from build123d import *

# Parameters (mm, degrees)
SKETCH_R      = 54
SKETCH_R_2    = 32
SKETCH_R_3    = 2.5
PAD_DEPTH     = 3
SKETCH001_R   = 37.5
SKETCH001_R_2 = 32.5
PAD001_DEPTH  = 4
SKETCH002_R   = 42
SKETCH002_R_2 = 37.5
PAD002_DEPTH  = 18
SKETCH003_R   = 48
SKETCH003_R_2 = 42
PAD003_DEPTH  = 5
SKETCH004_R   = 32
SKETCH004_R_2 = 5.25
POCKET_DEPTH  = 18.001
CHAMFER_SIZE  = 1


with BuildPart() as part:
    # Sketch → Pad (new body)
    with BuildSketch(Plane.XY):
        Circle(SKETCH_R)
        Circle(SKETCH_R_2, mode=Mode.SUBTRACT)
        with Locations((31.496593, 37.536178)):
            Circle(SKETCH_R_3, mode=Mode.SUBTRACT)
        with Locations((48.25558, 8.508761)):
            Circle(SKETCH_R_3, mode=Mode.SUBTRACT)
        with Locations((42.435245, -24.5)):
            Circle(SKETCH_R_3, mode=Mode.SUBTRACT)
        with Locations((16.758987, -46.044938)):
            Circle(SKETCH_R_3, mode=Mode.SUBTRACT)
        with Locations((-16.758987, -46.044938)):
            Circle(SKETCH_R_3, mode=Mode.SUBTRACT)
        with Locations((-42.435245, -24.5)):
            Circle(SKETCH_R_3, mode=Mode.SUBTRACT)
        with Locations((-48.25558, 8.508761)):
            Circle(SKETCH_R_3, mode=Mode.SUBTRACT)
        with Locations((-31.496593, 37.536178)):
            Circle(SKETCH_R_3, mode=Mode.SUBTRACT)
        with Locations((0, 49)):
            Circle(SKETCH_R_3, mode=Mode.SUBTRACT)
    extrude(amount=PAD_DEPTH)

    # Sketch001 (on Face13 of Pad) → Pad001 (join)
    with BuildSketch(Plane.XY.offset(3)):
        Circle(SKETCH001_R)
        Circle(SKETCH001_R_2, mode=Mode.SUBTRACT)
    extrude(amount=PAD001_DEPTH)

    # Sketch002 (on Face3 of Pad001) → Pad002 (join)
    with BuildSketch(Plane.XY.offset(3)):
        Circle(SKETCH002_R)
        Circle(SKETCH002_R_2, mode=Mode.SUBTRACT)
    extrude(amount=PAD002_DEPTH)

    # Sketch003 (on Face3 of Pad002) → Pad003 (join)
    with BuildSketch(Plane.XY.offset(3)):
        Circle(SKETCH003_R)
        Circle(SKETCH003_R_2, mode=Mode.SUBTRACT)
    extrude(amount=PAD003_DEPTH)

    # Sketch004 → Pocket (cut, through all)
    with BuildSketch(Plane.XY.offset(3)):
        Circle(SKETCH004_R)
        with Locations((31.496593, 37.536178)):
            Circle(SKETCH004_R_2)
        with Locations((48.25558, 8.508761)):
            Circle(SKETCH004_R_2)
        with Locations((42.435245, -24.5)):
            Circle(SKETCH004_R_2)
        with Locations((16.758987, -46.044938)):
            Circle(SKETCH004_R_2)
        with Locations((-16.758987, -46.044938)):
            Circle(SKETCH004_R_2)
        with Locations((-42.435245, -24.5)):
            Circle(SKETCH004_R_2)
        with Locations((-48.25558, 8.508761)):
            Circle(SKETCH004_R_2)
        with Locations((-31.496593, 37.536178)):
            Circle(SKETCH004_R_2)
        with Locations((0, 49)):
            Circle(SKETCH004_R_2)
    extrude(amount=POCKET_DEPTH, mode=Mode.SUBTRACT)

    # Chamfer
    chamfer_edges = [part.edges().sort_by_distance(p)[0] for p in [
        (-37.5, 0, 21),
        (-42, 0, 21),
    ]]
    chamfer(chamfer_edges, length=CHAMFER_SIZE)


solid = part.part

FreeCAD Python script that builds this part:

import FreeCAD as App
import Part
import Sketcher

V = App.Vector
Q = App.Units.Quantity


def edges_at(feature, points):
    """Names of the edges that pass closest to the given points."""
    edges = feature.Shape.Edges
    near = lambda p: min(range(len(edges)), key=lambda i: edges[i].distToShape(Part.Vertex(*p))[0])
    return sorted({f"Edge{near(p) + 1}" for p in points})

doc = App.newDocument("Part")
body = doc.addObject("PartDesign::Body", "Body")

# Sketch on XY plane
sketch1 = body.newObject("Sketcher::SketchObject", "Sketch")
sketch1.AttachmentSupport = (doc.getObject("XY_Plane"), [""])
sketch1.MapMode = "FlatFace"
sketch1.addGeometry([
    Part.Circle(V(0, 0, 0), V(0, 0, 1), 54),  # 0
    Part.Circle(V(-42.435245, -24.5, 0), V(0, 0, 1), 2.5),  # 1
    Part.Circle(V(-16.758987, -46.044938, 0), V(0, 0, 1), 2.5),  # 2
    Part.Circle(V(16.758987, -46.044938, 0), V(0, 0, 1), 2.5),  # 3
    Part.Circle(V(42.435245, -24.5, 0), V(0, 0, 1), 2.5),  # 4
    Part.Circle(V(0, 0, 0), V(0, 0, 1), 32),  # 5
    Part.Circle(V(-48.25558, 8.508761, 0), V(0, 0, 1), 2.5),  # 6
    Part.Circle(V(-31.496593, 37.536178, 0), V(0, 0, 1), 2.5),  # 7
    Part.Circle(V(48.25558, 8.508761, 0), V(0, 0, 1), 2.5),  # 8
    Part.Circle(V(0, 49, 0), V(0, 0, 1), 2.5),  # 9
    Part.Circle(V(31.496593, 37.536178, 0), V(0, 0, 1), 2.5),  # 10
], False)
sketch1.addConstraint([
    Sketcher.Constraint("Coincident", 0, 3, -1, 1),
    Sketcher.Constraint("Coincident", 5, 3, -1, 1),
    Sketcher.Constraint("Equal", 1, 2),
    Sketcher.Constraint("Equal", 2, 3),
    Sketcher.Constraint("Equal", 3, 4),
    Sketcher.Constraint("Equal", 4, 6),
    Sketcher.Constraint("Equal", 6, 7),
    Sketcher.Constraint("Equal", 7, 8),
    Sketcher.Constraint("Equal", 8, 9),
    Sketcher.Constraint("Equal", 9, 10),
    Sketcher.Constraint("Symmetric", 2, 3, 3, 3, -2),
    Sketcher.Constraint("Symmetric", 1, 3, 4, 3, -2),
    Sketcher.Constraint("Symmetric", 6, 3, 8, 3, -2),
    Sketcher.Constraint("Symmetric", 7, 3, 10, 3, -2),
    Sketcher.Constraint("PointOnObject", 9, 3, -2),
    Sketcher.Constraint("Diameter", 0, Q("108 mm")),
    Sketcher.Constraint("Diameter", 1, Q("5 mm")),
    Sketcher.Constraint("Diameter", 5, Q("64 mm")),
    Sketcher.Constraint("DistanceY", -1, 1, 9, 3, Q("49 mm")),
    Sketcher.Constraint("DistanceY", 1, 3, -1, 1, Q("24.5 mm")),
    Sketcher.Constraint("DistanceY", 2, 3, 6, 3, Q("54.553699 mm")),
    Sketcher.Constraint("DistanceY", 2, 3, -1, 1, Q("46.044938 mm")),
    Sketcher.Constraint("DistanceX", 6, 3, -1, 1, Q("48.25558 mm")),
    Sketcher.Constraint("DistanceX", 1, 3, 2, 3, Q("25.676258 mm")),
    Sketcher.Constraint("DistanceX", 1, 3, 4, 3, Q("84.87049 mm")),
    Sketcher.Constraint("DistanceX", 7, 3, -1, 1, Q("31.496593 mm")),
    Sketcher.Constraint("DistanceY", -1, 1, 7, 3, Q("37.536178 mm")),
])
pad1 = body.newObject("PartDesign::Pad", "Pad")
pad1.Profile = sketch1
pad1.Length = 3

# Sketch on XY plane
sketch2 = body.newObject("Sketcher::SketchObject", "Sketch001")
sketch2.AttachmentSupport = (doc.getObject("XY_Plane"), [""])
sketch2.MapMode = "FlatFace"
sketch2.AttachmentOffset = App.Placement(V(0, 0, 3), App.Rotation())
sketch2.addGeometry([
    Part.Circle(V(0, 0, 0), V(0, 0, 1), 37.5),
    Part.Circle(V(0, 0, 0), V(0, 0, 1), 32.5),
], False)
sketch2.addConstraint([
    Sketcher.Constraint("Coincident", 0, 3, -1, 1),
    Sketcher.Constraint("Coincident", 1, 3, -1, 1),
    Sketcher.Constraint("Diameter", 0, Q("75 mm")),
    Sketcher.Constraint("Diameter", 1, Q("65 mm")),
])
pad2 = body.newObject("PartDesign::Pad", "Pad001")
pad2.Profile = sketch2
pad2.Length = 4

# Sketch on XY plane
sketch3 = body.newObject("Sketcher::SketchObject", "Sketch002")
sketch3.AttachmentSupport = (doc.getObject("XY_Plane"), [""])
sketch3.MapMode = "FlatFace"
sketch3.AttachmentOffset = App.Placement(V(0, 0, 3), App.Rotation())
sketch3.addGeometry([
    Part.Circle(V(0, 0, 0), V(0, 0, 1), 42),
    Part.Circle(V(0, 0, 0), V(0, 0, 1), 37.5),
], False)
sketch3.addConstraint([
    Sketcher.Constraint("Coincident", 0, 3, -1, 1),
    Sketcher.Constraint("Coincident", 1, 3, -1, 1),
    Sketcher.Constraint("Diameter", 0, Q("84 mm")),
    Sketcher.Constraint("Diameter", 1, Q("75 mm")),
])
pad3 = body.newObject("PartDesign::Pad", "Pad002")
pad3.Profile = sketch3
pad3.Length = 18

# Sketch on XY plane
sketch4 = body.newObject("Sketcher::SketchObject", "Sketch003")
sketch4.AttachmentSupport = (doc.getObject("XY_Plane"), [""])
sketch4.MapMode = "FlatFace"
sketch4.AttachmentOffset = App.Placement(V(0, 0, 3), App.Rotation())
sketch4.addGeometry([
    Part.Circle(V(0, 0, 0), V(0, 0, 1), 48),
    Part.Circle(V(0, 0, 0), V(0, 0, 1), 42),
], False)
sketch4.addConstraint([
    Sketcher.Constraint("Coincident", 0, 3, -1, 1),
    Sketcher.Constraint("Coincident", 1, 3, -1, 1),
    Sketcher.Constraint("Diameter", 0, Q("96 mm")),
    Sketcher.Constraint("Diameter", 1, Q("84 mm")),
])
pad4 = body.newObject("PartDesign::Pad", "Pad003")
pad4.Profile = sketch4
pad4.Length = 5

# Sketch on XY plane
sketch5 = body.newObject("Sketcher::SketchObject", "Sketch004")
sketch5.AttachmentSupport = (doc.getObject("XY_Plane"), [""])
sketch5.MapMode = "FlatFace"
sketch5.AttachmentOffset = App.Placement(V(0, 0, 3), App.Rotation())
sketch5.addGeometry([
    Part.Circle(V(0, 0, 0), V(0, 0, 1), 32),  # 0
    Part.Circle(V(31.496593, 37.536178, 0), V(0, 0, 1), 5.25),  # 1
    Part.Circle(V(48.25558, 8.508761, 0), V(0, 0, 1), 5.25),  # 2
    Part.Circle(V(42.435245, -24.5, 0), V(0, 0, 1), 5.25),  # 3
    Part.Circle(V(16.758987, -46.044938, 0), V(0, 0, 1), 5.25),  # 4
    Part.Circle(V(-16.758987, -46.044938, 0), V(0, 0, 1), 5.25),  # 5
    Part.Circle(V(-42.435245, -24.5, 0), V(0, 0, 1), 5.25),  # 6
    Part.Circle(V(-48.25558, 8.508761, 0), V(0, 0, 1), 5.25),  # 7
    Part.Circle(V(-31.496593, 37.536178, 0), V(0, 0, 1), 5.25),  # 8
    Part.Circle(V(0, 49, 0), V(0, 0, 1), 5.25),  # 9
], False)
sketch5.addConstraint([
    Sketcher.Constraint("Coincident", 0, 3, -1, 1),
    Sketcher.Constraint("Equal", 1, 2),
    Sketcher.Constraint("Equal", 2, 3),
    Sketcher.Constraint("Equal", 3, 4),
    Sketcher.Constraint("Equal", 4, 5),
    Sketcher.Constraint("Equal", 5, 6),
    Sketcher.Constraint("Equal", 6, 7),
    Sketcher.Constraint("Equal", 7, 8),
    Sketcher.Constraint("Equal", 8, 9),
    Sketcher.Constraint("Symmetric", 4, 3, 5, 3, -2),
    Sketcher.Constraint("Symmetric", 3, 3, 6, 3, -2),
    Sketcher.Constraint("Symmetric", 2, 3, 7, 3, -2),
    Sketcher.Constraint("Symmetric", 1, 3, 8, 3, -2),
    Sketcher.Constraint("PointOnObject", 9, 3, -2),
    Sketcher.Constraint("Diameter", 0, Q("64 mm")),
    Sketcher.Constraint("Diameter", 1, Q("10.5 mm")),
    Sketcher.Constraint("DistanceY", -1, 1, 9, 3, Q("49 mm")),
    Sketcher.Constraint("DistanceY", 3, 3, -1, 1, Q("24.5 mm")),
    Sketcher.Constraint("DistanceY", 4, 3, 2, 3, Q("54.553699 mm")),
    Sketcher.Constraint("DistanceX", -1, 1, 2, 3, Q("48.25558 mm")),
    Sketcher.Constraint("DistanceY", -1, 1, 2, 3, Q("8.508761 mm")),
    Sketcher.Constraint("DistanceX", 4, 3, 3, 3, Q("25.676258 mm")),
    Sketcher.Constraint("DistanceX", 5, 3, 1, 3, Q("48.25558 mm")),
    Sketcher.Constraint("DistanceX", 6, 3, 3, 3, Q("84.87049 mm")),
    Sketcher.Constraint("DistanceY", -1, 1, 1, 3, Q("37.536178 mm")),
])
pocket1 = body.newObject("PartDesign::Pocket", "Pocket")
pocket1.Profile = sketch5
pocket1.Type = "ThroughAll"
pocket1.Reversed = True
doc.recompute()

chamfer = body.newObject("PartDesign::Chamfer", "Chamfer")
chamfer.Base = (pocket1, edges_at(pocket1, [(-37.5, 0, 21), (-42, 0, 21)]))
chamfer.Size = 1

doc.recompute()
